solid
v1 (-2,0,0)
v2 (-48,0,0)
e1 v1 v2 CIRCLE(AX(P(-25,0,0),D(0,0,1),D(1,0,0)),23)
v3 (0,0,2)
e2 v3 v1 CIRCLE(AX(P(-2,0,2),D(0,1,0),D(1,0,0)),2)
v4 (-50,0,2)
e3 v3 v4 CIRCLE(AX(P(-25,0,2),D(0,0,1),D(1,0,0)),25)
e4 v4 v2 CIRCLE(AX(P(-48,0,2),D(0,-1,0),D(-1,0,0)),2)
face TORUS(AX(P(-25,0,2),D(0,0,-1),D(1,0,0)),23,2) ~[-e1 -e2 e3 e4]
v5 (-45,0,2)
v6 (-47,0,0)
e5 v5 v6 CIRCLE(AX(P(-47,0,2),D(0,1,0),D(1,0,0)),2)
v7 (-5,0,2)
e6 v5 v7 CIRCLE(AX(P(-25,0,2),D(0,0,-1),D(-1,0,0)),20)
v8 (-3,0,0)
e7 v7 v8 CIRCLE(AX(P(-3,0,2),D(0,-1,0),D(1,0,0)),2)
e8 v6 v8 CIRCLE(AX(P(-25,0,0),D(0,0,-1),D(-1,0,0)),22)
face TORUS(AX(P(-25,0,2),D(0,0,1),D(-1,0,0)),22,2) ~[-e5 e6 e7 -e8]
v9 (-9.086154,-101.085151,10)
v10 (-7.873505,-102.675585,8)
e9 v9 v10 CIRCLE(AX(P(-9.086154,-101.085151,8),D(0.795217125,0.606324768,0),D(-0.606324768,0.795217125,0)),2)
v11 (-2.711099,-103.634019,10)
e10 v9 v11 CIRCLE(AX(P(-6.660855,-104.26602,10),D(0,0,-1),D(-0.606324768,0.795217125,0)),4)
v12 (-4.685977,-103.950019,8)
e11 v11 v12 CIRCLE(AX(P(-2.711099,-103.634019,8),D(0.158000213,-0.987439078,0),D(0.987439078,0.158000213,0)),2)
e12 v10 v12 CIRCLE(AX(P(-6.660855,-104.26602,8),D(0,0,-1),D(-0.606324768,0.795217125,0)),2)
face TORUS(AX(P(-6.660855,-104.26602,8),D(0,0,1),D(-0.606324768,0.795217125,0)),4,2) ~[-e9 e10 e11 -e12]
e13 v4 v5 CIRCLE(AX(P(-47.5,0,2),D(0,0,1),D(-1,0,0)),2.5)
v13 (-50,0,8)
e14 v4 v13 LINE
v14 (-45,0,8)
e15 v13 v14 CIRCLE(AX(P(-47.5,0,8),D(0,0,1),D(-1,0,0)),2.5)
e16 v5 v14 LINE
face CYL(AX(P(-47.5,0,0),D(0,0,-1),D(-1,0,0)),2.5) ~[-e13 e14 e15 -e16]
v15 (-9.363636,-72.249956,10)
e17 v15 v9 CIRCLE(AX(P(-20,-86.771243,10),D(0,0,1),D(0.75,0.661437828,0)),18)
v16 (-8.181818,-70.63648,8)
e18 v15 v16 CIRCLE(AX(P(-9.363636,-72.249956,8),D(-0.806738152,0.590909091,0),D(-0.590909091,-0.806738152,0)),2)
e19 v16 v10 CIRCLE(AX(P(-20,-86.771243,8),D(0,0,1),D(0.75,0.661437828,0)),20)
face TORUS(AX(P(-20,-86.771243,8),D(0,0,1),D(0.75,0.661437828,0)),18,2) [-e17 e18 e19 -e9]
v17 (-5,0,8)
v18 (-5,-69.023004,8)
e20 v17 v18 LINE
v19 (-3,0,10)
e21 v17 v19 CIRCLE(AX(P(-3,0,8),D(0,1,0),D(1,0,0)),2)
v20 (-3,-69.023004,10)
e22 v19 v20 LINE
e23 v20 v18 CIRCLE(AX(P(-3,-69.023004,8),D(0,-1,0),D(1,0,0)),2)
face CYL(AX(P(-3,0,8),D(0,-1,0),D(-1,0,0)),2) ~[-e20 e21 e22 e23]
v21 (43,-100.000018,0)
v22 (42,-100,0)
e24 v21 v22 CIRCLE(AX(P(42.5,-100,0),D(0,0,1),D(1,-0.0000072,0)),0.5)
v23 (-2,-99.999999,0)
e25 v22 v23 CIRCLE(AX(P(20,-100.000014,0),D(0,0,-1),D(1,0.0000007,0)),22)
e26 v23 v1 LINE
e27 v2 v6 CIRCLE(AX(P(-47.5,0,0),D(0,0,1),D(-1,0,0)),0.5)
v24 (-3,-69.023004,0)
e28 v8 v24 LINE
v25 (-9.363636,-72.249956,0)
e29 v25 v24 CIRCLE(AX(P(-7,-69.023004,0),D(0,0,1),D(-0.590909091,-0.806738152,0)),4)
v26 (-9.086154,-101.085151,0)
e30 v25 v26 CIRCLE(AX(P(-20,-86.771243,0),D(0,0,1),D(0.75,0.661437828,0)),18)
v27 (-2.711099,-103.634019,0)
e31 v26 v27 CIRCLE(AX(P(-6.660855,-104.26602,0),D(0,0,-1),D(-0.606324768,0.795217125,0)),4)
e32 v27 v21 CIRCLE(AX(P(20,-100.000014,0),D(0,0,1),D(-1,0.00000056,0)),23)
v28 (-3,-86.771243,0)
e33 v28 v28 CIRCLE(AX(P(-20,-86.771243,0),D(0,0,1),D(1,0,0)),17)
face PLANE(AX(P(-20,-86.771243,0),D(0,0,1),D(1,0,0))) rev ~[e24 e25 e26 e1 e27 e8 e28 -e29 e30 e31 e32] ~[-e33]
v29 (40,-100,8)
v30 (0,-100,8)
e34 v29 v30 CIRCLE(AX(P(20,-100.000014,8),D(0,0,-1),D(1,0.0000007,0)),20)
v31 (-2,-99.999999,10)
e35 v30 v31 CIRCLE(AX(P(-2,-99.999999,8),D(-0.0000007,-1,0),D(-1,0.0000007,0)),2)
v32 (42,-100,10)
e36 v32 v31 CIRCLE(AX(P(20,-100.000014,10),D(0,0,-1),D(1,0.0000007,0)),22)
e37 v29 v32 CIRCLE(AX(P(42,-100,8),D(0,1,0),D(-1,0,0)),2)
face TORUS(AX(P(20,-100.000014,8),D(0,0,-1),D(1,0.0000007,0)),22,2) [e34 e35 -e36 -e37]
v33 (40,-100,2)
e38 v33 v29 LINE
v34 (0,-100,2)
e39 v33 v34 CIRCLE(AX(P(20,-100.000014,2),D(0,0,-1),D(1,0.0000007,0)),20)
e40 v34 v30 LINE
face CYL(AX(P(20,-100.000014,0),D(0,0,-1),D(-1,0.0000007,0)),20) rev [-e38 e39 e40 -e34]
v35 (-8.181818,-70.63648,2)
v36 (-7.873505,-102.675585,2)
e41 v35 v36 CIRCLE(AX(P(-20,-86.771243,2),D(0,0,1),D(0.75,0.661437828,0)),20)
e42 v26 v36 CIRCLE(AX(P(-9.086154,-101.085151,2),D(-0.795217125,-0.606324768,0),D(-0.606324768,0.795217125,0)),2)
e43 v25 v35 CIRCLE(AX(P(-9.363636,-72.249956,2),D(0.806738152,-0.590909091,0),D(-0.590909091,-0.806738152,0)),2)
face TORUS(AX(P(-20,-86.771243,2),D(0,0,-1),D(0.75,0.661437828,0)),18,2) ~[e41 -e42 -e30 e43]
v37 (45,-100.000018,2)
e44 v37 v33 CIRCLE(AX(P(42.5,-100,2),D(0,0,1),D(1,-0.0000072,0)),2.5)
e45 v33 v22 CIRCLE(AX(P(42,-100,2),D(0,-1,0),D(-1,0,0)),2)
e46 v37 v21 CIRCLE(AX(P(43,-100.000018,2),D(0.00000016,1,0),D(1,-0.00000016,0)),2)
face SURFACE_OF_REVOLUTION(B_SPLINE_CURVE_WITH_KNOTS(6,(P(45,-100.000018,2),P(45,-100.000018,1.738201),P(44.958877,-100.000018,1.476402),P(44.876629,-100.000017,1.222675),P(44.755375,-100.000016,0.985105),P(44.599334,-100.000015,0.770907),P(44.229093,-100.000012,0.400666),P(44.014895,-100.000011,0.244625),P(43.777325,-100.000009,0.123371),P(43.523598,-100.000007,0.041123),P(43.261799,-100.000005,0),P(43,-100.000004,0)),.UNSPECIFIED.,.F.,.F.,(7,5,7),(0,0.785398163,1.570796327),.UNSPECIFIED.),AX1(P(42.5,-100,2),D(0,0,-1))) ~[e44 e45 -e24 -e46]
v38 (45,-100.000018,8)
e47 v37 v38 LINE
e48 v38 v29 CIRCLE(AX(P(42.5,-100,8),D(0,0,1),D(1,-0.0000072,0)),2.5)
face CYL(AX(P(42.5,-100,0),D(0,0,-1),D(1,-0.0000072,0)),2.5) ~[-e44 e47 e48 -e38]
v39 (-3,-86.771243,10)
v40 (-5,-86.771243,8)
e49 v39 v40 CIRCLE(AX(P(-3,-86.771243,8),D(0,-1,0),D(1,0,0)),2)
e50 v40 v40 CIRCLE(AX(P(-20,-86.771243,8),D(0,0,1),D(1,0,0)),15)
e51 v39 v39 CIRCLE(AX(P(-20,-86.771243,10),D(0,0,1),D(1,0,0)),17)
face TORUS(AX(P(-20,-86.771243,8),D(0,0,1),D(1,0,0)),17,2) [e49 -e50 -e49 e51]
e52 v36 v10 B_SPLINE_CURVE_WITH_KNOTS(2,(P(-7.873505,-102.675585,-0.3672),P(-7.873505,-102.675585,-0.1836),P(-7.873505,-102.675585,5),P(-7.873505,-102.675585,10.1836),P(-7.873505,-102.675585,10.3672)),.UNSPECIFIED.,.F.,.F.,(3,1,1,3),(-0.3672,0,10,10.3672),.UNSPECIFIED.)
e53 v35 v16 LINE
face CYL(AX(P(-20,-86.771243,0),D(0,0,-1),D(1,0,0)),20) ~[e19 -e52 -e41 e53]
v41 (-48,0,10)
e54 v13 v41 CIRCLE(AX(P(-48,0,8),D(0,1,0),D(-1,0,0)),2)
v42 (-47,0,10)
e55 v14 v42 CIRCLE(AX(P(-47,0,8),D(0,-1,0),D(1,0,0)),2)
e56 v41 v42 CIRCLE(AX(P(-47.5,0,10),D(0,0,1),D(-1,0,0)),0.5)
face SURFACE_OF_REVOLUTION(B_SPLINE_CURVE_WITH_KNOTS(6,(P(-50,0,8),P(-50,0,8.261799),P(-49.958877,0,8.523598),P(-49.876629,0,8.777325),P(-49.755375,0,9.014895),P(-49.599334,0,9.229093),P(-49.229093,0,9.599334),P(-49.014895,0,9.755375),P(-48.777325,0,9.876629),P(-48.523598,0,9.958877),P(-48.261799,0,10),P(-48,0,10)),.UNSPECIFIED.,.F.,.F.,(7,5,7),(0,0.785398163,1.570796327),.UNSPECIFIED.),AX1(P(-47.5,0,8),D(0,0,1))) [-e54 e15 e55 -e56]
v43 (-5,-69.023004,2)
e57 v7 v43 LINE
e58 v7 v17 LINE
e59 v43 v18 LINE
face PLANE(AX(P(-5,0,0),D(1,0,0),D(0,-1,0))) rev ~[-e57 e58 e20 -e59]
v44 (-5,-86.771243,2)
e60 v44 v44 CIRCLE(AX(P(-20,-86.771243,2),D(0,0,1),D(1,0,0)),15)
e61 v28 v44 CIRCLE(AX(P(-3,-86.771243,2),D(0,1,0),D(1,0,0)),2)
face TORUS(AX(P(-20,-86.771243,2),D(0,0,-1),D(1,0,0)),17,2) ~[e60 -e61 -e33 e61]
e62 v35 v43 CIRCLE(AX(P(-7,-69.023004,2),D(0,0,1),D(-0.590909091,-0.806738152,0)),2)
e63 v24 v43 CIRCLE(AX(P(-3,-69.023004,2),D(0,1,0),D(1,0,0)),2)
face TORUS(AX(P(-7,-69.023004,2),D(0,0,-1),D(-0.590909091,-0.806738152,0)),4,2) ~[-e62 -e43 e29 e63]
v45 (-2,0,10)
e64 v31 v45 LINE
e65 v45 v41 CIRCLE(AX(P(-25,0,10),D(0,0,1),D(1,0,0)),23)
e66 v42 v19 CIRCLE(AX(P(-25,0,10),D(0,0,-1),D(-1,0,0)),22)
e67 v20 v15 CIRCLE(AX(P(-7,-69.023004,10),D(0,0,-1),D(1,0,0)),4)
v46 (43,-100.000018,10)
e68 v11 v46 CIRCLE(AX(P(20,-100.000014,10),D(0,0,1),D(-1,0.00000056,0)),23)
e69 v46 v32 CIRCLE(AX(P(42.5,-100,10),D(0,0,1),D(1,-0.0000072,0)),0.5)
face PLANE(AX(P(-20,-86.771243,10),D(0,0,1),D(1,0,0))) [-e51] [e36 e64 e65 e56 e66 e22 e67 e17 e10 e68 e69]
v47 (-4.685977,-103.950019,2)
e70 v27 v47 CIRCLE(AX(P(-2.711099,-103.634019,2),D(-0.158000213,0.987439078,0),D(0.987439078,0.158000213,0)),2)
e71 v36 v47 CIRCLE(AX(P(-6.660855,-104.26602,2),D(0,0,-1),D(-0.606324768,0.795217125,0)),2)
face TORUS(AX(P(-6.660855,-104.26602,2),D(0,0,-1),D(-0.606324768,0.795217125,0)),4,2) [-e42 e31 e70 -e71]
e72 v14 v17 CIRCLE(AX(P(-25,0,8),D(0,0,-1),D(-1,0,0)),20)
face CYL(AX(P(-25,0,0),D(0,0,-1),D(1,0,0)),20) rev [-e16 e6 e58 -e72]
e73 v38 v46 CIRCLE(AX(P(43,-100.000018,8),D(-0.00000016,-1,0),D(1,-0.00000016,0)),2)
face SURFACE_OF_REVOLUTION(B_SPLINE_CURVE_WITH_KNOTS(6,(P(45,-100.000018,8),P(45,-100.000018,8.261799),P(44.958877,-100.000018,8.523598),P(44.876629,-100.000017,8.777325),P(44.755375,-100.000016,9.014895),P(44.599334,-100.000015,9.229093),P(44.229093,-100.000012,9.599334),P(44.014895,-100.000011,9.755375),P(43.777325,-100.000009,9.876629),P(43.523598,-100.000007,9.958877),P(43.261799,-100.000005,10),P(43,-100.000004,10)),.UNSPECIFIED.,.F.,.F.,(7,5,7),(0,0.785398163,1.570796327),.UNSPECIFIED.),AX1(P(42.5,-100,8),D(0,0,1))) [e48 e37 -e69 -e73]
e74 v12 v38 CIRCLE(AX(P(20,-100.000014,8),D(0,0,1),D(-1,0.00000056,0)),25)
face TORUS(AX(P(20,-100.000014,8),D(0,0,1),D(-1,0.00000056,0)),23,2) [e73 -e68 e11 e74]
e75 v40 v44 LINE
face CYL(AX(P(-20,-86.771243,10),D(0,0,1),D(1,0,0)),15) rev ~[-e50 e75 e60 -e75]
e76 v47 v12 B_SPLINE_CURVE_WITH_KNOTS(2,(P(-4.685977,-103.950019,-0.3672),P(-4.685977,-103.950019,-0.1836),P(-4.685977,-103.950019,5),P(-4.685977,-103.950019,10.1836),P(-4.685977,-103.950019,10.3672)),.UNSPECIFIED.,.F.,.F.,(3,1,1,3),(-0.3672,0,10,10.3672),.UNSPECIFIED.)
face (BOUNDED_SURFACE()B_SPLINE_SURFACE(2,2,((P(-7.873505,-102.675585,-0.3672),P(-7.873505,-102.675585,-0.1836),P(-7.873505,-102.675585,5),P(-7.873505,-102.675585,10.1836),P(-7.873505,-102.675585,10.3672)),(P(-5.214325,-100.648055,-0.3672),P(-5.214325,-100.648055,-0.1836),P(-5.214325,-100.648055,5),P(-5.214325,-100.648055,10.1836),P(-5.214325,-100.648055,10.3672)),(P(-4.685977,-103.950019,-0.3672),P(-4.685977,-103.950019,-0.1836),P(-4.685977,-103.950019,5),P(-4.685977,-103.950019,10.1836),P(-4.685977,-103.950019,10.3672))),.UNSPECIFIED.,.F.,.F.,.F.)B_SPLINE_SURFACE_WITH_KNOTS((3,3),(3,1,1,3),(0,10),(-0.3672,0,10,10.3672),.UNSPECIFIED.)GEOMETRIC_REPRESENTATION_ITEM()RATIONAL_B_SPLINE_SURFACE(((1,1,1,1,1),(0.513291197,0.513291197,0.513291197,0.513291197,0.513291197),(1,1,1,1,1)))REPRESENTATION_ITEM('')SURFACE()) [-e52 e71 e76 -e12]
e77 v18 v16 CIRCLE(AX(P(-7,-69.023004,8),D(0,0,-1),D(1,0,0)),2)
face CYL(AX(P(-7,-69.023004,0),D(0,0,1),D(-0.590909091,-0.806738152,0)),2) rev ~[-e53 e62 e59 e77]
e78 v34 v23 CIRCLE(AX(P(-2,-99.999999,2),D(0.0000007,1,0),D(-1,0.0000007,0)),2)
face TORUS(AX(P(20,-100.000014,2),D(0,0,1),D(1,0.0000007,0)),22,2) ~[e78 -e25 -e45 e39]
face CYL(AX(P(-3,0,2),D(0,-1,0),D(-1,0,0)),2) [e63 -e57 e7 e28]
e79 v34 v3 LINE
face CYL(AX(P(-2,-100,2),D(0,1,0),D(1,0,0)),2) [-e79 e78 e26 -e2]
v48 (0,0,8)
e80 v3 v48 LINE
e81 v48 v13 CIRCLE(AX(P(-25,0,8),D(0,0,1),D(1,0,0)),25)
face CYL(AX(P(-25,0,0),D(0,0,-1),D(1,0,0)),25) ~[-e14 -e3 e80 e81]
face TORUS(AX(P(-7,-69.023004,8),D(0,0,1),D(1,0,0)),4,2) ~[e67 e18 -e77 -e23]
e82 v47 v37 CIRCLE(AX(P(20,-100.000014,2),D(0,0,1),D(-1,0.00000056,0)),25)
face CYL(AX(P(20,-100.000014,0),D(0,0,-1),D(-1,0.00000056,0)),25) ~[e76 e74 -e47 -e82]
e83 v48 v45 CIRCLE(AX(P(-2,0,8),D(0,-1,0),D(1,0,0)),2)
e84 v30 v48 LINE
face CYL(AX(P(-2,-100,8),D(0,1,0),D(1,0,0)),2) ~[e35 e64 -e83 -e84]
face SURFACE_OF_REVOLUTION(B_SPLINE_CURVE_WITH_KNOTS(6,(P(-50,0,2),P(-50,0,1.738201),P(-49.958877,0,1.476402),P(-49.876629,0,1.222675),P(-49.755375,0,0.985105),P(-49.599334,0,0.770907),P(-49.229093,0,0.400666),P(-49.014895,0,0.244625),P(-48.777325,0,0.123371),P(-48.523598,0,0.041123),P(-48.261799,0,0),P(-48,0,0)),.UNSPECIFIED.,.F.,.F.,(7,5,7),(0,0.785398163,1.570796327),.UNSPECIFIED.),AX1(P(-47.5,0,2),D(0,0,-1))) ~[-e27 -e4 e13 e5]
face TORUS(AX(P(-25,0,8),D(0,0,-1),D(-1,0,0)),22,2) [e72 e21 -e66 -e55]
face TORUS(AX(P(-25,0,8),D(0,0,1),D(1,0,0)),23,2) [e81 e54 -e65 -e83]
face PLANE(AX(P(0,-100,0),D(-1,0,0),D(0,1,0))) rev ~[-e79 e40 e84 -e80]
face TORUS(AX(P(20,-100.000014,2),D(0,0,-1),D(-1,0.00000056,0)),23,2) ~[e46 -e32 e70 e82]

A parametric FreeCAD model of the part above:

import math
import FreeCAD as App
import Part
import Sketcher
Q = App.Units.Quantity

doc = App.newDocument("Part")
body = doc.addObject("PartDesign::Body", "Body")

# Sketch on XY plane
sketch1 = doc.addObject("Sketcher::SketchObject", "Sketch")
body.addObject(sketch1)
sketch1.AttachmentSupport = (doc.XY_Plane, [""])
sketch1.MapMode = "FlatFace"
sketch1.addGeometry(Part.ArcOfCircle(Part.Circle(App.Vector(-20, -86.771243, 0), App.Vector(0, 0, 1), 20), math.radians(41.409622), math.radians(318.590377)), False)
sketch1.addGeometry(Part.ArcOfCircle(Part.Circle(App.Vector(20, -100.000014, 0), App.Vector(0, 0, 1), 25), math.radians(179.999968), math.radians(359.999991)), False)
sketch1.addGeometry(Part.ArcOfCircle(Part.Circle(App.Vector(42.5, -100, 0), App.Vector(0, 0, 1), 2.5), math.radians(-0.000413), math.radians(180)), False)
sketch1.addGeometry(Part.ArcOfCircle(Part.Circle(App.Vector(20, -100.000014, 0), App.Vector(0, 0, 1), 20), math.radians(179.99996), math.radians(360.00004)), False)
sketch1.addGeometry(Part.LineSegment(App.Vector(0, -100, 0), App.Vector(0, 0, 0)), False)
sketch1.addGeometry(Part.ArcOfCircle(Part.Circle(App.Vector(-25, 0, 0), App.Vector(0, 0, 1), 25), math.radians(0), math.radians(180)), False)
sketch1.addGeometry(Part.ArcOfCircle(Part.Circle(App.Vector(-47.5, 0, 0), App.Vector(0, 0, 1), 2.5), math.radians(180), math.radians(360)), False)
sketch1.addGeometry(Part.ArcOfCircle(Part.Circle(App.Vector(-25, 0, 0), App.Vector(0, 0, 1), 20), math.radians(0), math.radians(180)), False)
sketch1.addGeometry(Part.LineSegment(App.Vector(-5, 0, 0), App.Vector(-5, -73.542486, 0)), False)
sketch1.addConstraint(Sketcher.Constraint("Coincident", 0, 2, 1, 1))
sketch1.addConstraint(Sketcher.Constraint("Coincident", 1, 2, 2, 1))
sketch1.addConstraint(Sketcher.Constraint("Tangent", 2, 2, 3, 2))
sketch1.addConstraint(Sketcher.Constraint("Tangent", 3, 1, 4, 1))
sketch1.addConstraint(Sketcher.Constraint("Tangent", 4, 2, 5, 1))
sketch1.addConstraint(Sketcher.Constraint("Tangent", 5, 2, 6, 1))
sketch1.addConstraint(Sketcher.Constraint("Tangent", 6, 2, 7, 2))
sketch1.addConstraint(Sketcher.Constraint("Tangent", 7, 1, 8, 1))
sketch1.addConstraint(Sketcher.Constraint("Coincident", 8, 2, 0, 1))
sketch1.addConstraint(Sketcher.Constraint("Vertical", 4))
sketch1.addConstraint(Sketcher.Constraint("Vertical", 8))
sketch1.addConstraint(Sketcher.Constraint("Coincident", 4, 2, -1, 1))
sketch1.addConstraint(Sketcher.Constraint("Coincident", 3, 3, 1, 3))
sketch1.addConstraint(Sketcher.Constraint("Coincident", 7, 3, 5, 3))
sketch1.addConstraint(Sketcher.Constraint("Equal", 0, 3))
sketch1.addConstraint(Sketcher.Constraint("Equal", 1, 5))
sketch1.addConstraint(Sketcher.Constraint("Equal", 2, 6))
sketch1.addConstraint(Sketcher.Constraint("PointOnObject", 6, 3, -1))
sketch1.addConstraint(Sketcher.Constraint("Horizontal", 2, 3, 0, 2))
sketch1.addConstraint(Sketcher.Constraint("Horizontal", 0, 2, 2, 2))
sketch1.addConstraint(Sketcher.Constraint("Radius", 0, Q("20 mm")))
sketch1.addConstraint(Sketcher.Constraint("Radius", 1, Q("25 mm")))
sketch1.addConstraint(Sketcher.Constraint("DistanceY", 4, 1, 4, 2, Q("100 mm")))
sketch1.addConstraint(Sketcher.Constraint("DistanceX", 0, 3, -1, 1, Q("20 mm")))
sketch1.addConstraint(Sketcher.Constraint("DistanceY", 1, 2, -1, 1, Q("100.000018 mm")))
pad1 = doc.addObject("PartDesign::Pad", "Pad")
body.addObject(pad1)
pad1.Profile = sketch1
pad1.Length = 10

# Sketch on XY plane
sketch2 = doc.addObject("Sketcher::SketchObject", "Sketch001")
body.addObject(sketch2)
sketch2.AttachmentSupport = (doc.XY_Plane, [""])
sketch2.MapMode = "FlatFace"
sketch2.addGeometry(Part.ArcOfCircle(Part.Circle(App.Vector(-20, -86.771243, 0), App.Vector(0, 0, 1), 20), math.radians(41.409622), math.radians(318.590377)), False)
sketch2.addGeometry(Part.ArcOfCircle(Part.Circle(App.Vector(20, -100.000014, 0), App.Vector(0, 0, 1), 25), math.radians(179.999968), math.radians(359.999991)), False)
sketch2.addGeometry(Part.ArcOfCircle(Part.Circle(App.Vector(42.5, -100, 0), App.Vector(0, 0, 1), 2.5), math.radians(-0.000413), math.radians(180)), False)
sketch2.addGeometry(Part.ArcOfCircle(Part.Circle(App.Vector(20, -100.000014, 0), App.Vector(0, 0, 1), 20), math.radians(179.99996), math.radians(360.00004)), False)
sketch2.addGeometry(Part.LineSegment(App.Vector(0, -100, 0), App.Vector(0, 0, 0)), False)
sketch2.addGeometry(Part.ArcOfCircle(Part.Circle(App.Vector(-25, 0, 0), App.Vector(0, 0, 1), 25), math.radians(0), math.radians(180)), False)
sketch2.addGeometry(Part.ArcOfCircle(Part.Circle(App.Vector(-47.5, 0, 0), App.Vector(0, 0, 1), 2.5), math.radians(180), math.radians(360)), False)
sketch2.addGeometry(Part.ArcOfCircle(Part.Circle(App.Vector(-25, 0, 0), App.Vector(0, 0, 1), 20), math.radians(0), math.radians(180)), False)
sketch2.addGeometry(Part.LineSegment(App.Vector(-5, 0, 0), App.Vector(-5, -73.542486, 0)), False)
sketch2.addConstraint(Sketcher.Constraint("Coincident", 0, 2, 1, 1))
sketch2.addConstraint(Sketcher.Constraint("Coincident", 1, 2, 2, 1))
sketch2.addConstraint(Sketcher.Constraint("Tangent", 2, 2, 3, 2))
sketch2.addConstraint(Sketcher.Constraint("Tangent", 3, 1, 4, 1))
sketch2.addConstraint(Sketcher.Constraint("Tangent", 4, 2, 5, 1))
sketch2.addConstraint(Sketcher.Constraint("Tangent", 5, 2, 6, 1))
sketch2.addConstraint(Sketcher.Constraint("Tangent", 6, 2, 7, 2))
sketch2.addConstraint(Sketcher.Constraint("Tangent", 7, 1, 8, 1))
sketch2.addConstraint(Sketcher.Constraint("Coincident", 8, 2, 0, 1))
sketch2.addConstraint(Sketcher.Constraint("Vertical", 4))
sketch2.addConstraint(Sketcher.Constraint("Vertical", 8))
sketch2.addConstraint(Sketcher.Constraint("Coincident", 4, 2, -1, 1))
sketch2.addConstraint(Sketcher.Constraint("Coincident", 3, 3, 1, 3))
sketch2.addConstraint(Sketcher.Constraint("Coincident", 7, 3, 5, 3))
sketch2.addConstraint(Sketcher.Constraint("Equal", 0, 3))
sketch2.addConstraint(Sketcher.Constraint("Equal", 1, 5))
sketch2.addConstraint(Sketcher.Constraint("Equal", 2, 6))
sketch2.addConstraint(Sketcher.Constraint("PointOnObject", 6, 3, -1))
sketch2.addConstraint(Sketcher.Constraint("Horizontal", 2, 3, 0, 2))
sketch2.addConstraint(Sketcher.Constraint("Horizontal", 0, 2, 2, 2))
sketch2.addConstraint(Sketcher.Constraint("Radius", 0, Q("20 mm")))
sketch2.addConstraint(Sketcher.Constraint("Radius", 1, Q("25 mm")))
sketch2.addConstraint(Sketcher.Constraint("DistanceY", 4, 1, 4, 2, Q("100 mm")))
sketch2.addConstraint(Sketcher.Constraint("DistanceX", 0, 3, -1, 1, Q("20 mm")))
sketch2.addConstraint(Sketcher.Constraint("DistanceY", 1, 2, -1, 1, Q("100.000018 mm")))
pad2 = doc.addObject("PartDesign::Pad", "Pad001")
body.addObject(pad2)
pad2.Profile = sketch2
pad2.Length = 10

# Sketch on XY plane
sketch3 = doc.addObject("Sketcher::SketchObject", "Sketch002")
body.addObject(sketch3)
sketch3.AttachmentSupport = (doc.XY_Plane, [""])
sketch3.MapMode = "FlatFace"
sketch3.AttachmentOffset = App.Placement(App.Vector(0, 0, 10), App.Rotation())
sketch3.addGeometry(Part.Circle(App.Vector(-20, -86.771243, 0), App.Vector(0, 0, 1), 15), False)
sketch3.addConstraint(Sketcher.Constraint("Diameter", 0, Q("30 mm")))
sketch3.addConstraint(Sketcher.Constraint("DistanceX", 0, 3, -1, 1, Q("20 mm")))
sketch3.addConstraint(Sketcher.Constraint("DistanceY", 0, 3, -1, 1, Q("86.771243 mm")))
pocket1 = doc.addObject("PartDesign::Pocket", "Pocket")
body.addObject(pocket1)
pocket1.Profile = sketch3
pocket1.Length = 10
doc.recompute()

fillet = doc.addObject("PartDesign::Fillet", "Fillet")
body.addObject(fillet)
fillet.Base = (pocket1, ["Edge1"])
fillet.UseAllEdges = True
fillet.Radius = 2

doc.recompute()
